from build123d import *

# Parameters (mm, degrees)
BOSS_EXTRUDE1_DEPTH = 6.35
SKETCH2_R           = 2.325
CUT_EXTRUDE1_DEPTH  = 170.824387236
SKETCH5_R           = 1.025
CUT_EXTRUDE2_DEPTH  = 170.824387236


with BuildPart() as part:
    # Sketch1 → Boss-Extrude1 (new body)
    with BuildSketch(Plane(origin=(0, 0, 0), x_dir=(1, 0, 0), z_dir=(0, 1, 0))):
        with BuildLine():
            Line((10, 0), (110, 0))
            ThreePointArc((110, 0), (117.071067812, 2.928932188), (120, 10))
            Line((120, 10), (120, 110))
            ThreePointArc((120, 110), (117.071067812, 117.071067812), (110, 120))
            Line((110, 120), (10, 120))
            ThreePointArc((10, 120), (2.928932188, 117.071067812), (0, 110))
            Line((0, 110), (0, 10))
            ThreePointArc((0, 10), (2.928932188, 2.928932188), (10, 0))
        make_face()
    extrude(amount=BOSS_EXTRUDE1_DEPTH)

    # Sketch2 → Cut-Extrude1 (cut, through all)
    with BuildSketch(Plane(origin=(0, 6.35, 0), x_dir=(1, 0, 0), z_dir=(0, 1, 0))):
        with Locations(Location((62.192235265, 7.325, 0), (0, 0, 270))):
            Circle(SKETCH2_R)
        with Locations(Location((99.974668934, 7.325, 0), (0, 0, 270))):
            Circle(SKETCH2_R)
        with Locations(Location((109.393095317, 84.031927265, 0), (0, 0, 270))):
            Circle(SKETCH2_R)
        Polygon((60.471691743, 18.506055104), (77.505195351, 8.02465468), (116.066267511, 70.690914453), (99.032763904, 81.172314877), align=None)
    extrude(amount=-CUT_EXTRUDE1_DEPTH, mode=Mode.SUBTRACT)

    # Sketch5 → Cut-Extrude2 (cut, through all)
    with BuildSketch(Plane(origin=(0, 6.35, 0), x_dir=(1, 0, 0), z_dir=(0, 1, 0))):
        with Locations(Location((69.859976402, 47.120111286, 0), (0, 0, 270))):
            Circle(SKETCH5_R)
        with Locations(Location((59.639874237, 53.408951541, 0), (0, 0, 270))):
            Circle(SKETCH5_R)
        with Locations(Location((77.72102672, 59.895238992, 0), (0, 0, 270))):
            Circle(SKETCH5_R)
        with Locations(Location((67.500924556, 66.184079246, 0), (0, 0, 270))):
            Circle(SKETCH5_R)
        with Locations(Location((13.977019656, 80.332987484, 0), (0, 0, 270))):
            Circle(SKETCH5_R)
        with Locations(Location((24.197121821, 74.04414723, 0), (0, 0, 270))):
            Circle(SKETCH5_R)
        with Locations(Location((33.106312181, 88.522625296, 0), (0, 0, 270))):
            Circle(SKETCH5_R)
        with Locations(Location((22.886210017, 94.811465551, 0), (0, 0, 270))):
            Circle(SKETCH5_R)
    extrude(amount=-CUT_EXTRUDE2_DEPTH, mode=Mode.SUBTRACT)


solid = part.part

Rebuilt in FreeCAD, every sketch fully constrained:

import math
import FreeCAD as App
import Part
import Sketcher

V = App.Vector
Q = App.Units.Quantity

doc = App.newDocument("Part")
body = doc.addObject("PartDesign::Body", "Body")

# Sketch on XZ plane
sketch1 = body.newObject("Sketcher::SketchObject", "Sketch")
sketch1.AttachmentSupport = (doc.getObject("XZ_Plane"), [""])
sketch1.MapMode = "FlatFace"
sketch1.addGeometry([
    Part.LineSegment(V(10, 0, 0), V(110, 0, 0)),  # 0
    Part.ArcOfCircle(Part.Circle(V(110, -10, 0), V(0, 0, 1), 10), math.radians(0), math.radians(90)),  # 1
    Part.LineSegment(V(120, -10, 0), V(120, -110, 0)),  # 2
    Part.ArcOfCircle(Part.Circle(V(110, -110, 0), V(0, 0, 1), 10), math.radians(-90), math.radians(0)),  # 3
    Part.LineSegment(V(110, -120, 0), V(10, -120, 0)),  # 4
    Part.ArcOfCircle(Part.Circle(V(10, -110, 0), V(0, 0, 1), 10), math.radians(180), math.radians(270)),  # 5
    Part.LineSegment(V(0, -110, 0), V(0, -10, 0)),  # 6
    Part.ArcOfCircle(Part.Circle(V(10, -10, 0), V(0, 0, 1), 10), math.radians(90), math.radians(180)),  # 7
], False)
sketch1.addConstraint([
    Sketcher.Constraint("Tangent", 0, 2, 1, 2),
    Sketcher.Constraint("Tangent", 1, 1, 2, 1),
    Sketcher.Constraint("Tangent", 2, 2, 3, 2),
    Sketcher.Constraint("Tangent", 3, 1, 4, 1),
    Sketcher.Constraint("Tangent", 4, 2, 5, 2),
    Sketcher.Constraint("Tangent", 5, 1, 6, 1),
    Sketcher.Constraint("Tangent", 6, 2, 7, 2),
    Sketcher.Constraint("Tangent", 7, 1, 0, 1),
    Sketcher.Constraint("Horizontal", 0),
    Sketcher.Constraint("Vertical", 2),
    Sketcher.Constraint("Horizontal", 4),
    Sketcher.Constraint("Vertical", 6),
    Sketcher.Constraint("Equal", 1, 3),
    Sketcher.Constraint("Equal", 3, 5),
    Sketcher.Constraint("Equal", 5, 7),
    Sketcher.Constraint("PointOnObject", 0, 2, -1),
    Sketcher.Constraint("PointOnObject", 5, 1, -2),
    Sketcher.Constraint("Equal", 4, 2),
    Sketcher.Constraint("Radius", 1, Q("10 mm")),
    Sketcher.Constraint("DistanceX", 0, 1, 0, 2, Q("100 mm")),
])
pad1 = body.newObject("PartDesign::Pad", "Pad")
pad1.Profile = sketch1
pad1.Length = 6.35
pad1.Reversed = True

# Sketch on XZ plane
sketch2 = body.newObject("Sketcher::SketchObject", "Sketch001")
sketch2.AttachmentSupport = (doc.getObject("XZ_Plane"), [""])
sketch2.MapMode = "FlatFace"
sketch2.AttachmentOffset = App.Placement(V(0, 0, -6.35), App.Rotation())
sketch2.addGeometry([
    Part.Circle(V(62.192235, -7.325, 0), V(0, 0, 1), 2.325),  # 0
    Part.Circle(V(99.974669, -7.325, 0), V(0, 0, 1), 2.325),  # 1
    Part.Circle(V(109.393095, -84.031927, 0), V(0, 0, 1), 2.325),  # 2
    Part.LineSegment(V(60.471692, -18.506055, 0), V(77.505195, -8.024655, 0)),  # 3
    Part.LineSegment(V(77.505195, -8.024655, 0), V(116.066268, -70.690914, 0)),  # 4
    Part.LineSegment(V(116.066268, -70.690914, 0), V(99.032764, -81.172315, 0)),  # 5
    Part.LineSegment(V(99.032764, -81.172315, 0), V(60.471692, -18.506055, 0)),  # 6
], False)
sketch2.addConstraint([
    Sketcher.Constraint("Coincident", 3, 2, 4, 1),
    Sketcher.Constraint("Coincident", 4, 2, 5, 1),
    Sketcher.Constraint("Coincident", 5, 2, 6, 1),
    Sketcher.Constraint("Coincident", 6, 2, 3, 1),
    Sketcher.Constraint("Equal", 0, 1),
    Sketcher.Constraint("Equal", 1, 2),
    Sketcher.Constraint("Perpendicular", 3, 4),
    Sketcher.Constraint("Perpendicular", 4, 5),
    Sketcher.Constraint("Perpendicular", 5, 6),
    Sketcher.Constraint("Horizontal", 0, 3, 1, 3),
    Sketcher.Constraint("Diameter", 0, Q("4.65 mm")),
    Sketcher.Constraint("Distance", 3, Q("20 mm")),
    Sketcher.Constraint("Distance", 4, Q("73.58 mm")),
    Sketcher.Constraint("DistanceY", 0, 3, -1, 1, Q("7.325 mm")),
    Sketcher.Constraint("DistanceX", 3, 2, 2, 3, Q("31.8879 mm")),
    Sketcher.Constraint("DistanceX", 1, 3, 4, 2, Q("16.091599 mm")),
    Sketcher.Constraint("DistanceY", 5, 2, 4, 2, Q("10.4814 mm")),
    Sketcher.Constraint("DistanceX", -1, 1, 1, 3, Q("99.974669 mm")),
    Sketcher.Constraint("DistanceX", 0, 3, 2, 3, Q("47.20086 mm")),
    Sketcher.Constraint("DistanceY", 2, 3, -1, 1, Q("84.031927 mm")),
    Sketcher.Constraint("DistanceY", 3, 2, -1, 1, Q("8.024655 mm")),
])
pocket1 = body.newObject("PartDesign::Pocket", "Pocket")
pocket1.Profile = sketch2
pocket1.Type = "ThroughAll"
pocket1.Reversed = True

# Sketch on XZ plane
sketch3 = body.newObject("Sketcher::SketchObject", "Sketch002")
sketch3.AttachmentSupport = (doc.getObject("XZ_Plane"), [""])
sketch3.MapMode = "FlatFace"
sketch3.AttachmentOffset = App.Placement(V(0, 0, -6.35), App.Rotation())
sketch3.addGeometry([
    Part.Circle(V(69.859976, -47.120111, 0), V(0, 0, 1), 1.025),  # 0
    Part.Circle(V(59.639874, -53.408952, 0), V(0, 0, 1), 1.025),  # 1
    Part.Circle(V(77.721027, -59.895239, 0), V(0, 0, 1), 1.025),  # 2
    Part.Circle(V(67.500925, -66.184079, 0), V(0, 0, 1), 1.025),  # 3
    Part.Circle(V(13.97702, -80.332987, 0), V(0, 0, 1), 1.025),  # 4
    Part.Circle(V(24.197122, -74.044147, 0), V(0, 0, 1), 1.025),  # 5
    Part.Circle(V(33.106312, -88.522625, 0), V(0, 0, 1), 1.025),  # 6
    Part.Circle(V(22.88621, -94.811466, 0), V(0, 0, 1), 1.025),  # 7
], False)
sketch3.addConstraint([
    Sketcher.Constraint("Equal", 0, 1),
    Sketcher.Constraint("Equal", 1, 2),
    Sketcher.Constraint("Equal", 2, 3),
    Sketcher.Constraint("Equal", 3, 4),
    Sketcher.Constraint("Equal", 4, 5),
    Sketcher.Constraint("Equal", 5, 6),
    Sketcher.Constraint("Equal", 6, 7),
    Sketcher.Constraint("Diameter", 0, Q("2.05 mm")),
    Sketcher.Constraint("DistanceY", 0, 3, -1, 1, Q("47.120111 mm")),
    Sketcher.Constraint("DistanceY", 1, 3, -1, 1, Q("53.408952 mm")),
    Sketcher.Constraint("DistanceY", 2, 3, -1, 1, Q("59.895239 mm")),
    Sketcher.Constraint("DistanceY", 3, 3, -1, 1, Q("66.184079 mm")),
    Sketcher.Constraint("DistanceX", -1, 1, 4, 3, Q("13.97702 mm")),
    Sketcher.Constraint("DistanceX", -1, 1, 5, 3, Q("24.197122 mm")),
    Sketcher.Constraint("DistanceX", -1, 1, 7, 3, Q("22.88621 mm")),
    Sketcher.Constraint("DistanceX", 0, 3, 2, 3, Q("7.86105 mm")),
    Sketcher.Constraint("DistanceX", 1, 3, 3, 3, Q("7.86105 mm")),
    Sketcher.Constraint("DistanceX", 3, 3, 0, 3, Q("2.359052 mm")),
    Sketcher.Constraint("DistanceY", 4, 3, 3, 3, Q("14.148908 mm")),
    Sketcher.Constraint("DistanceY", 4, 3, 5, 3, Q("6.28884 mm")),
    Sketcher.Constraint("DistanceX", 5, 3, 6, 3, Q("8.90919 mm")),
    Sketcher.Constraint("DistanceY", 6, 3, 5, 3, Q("14.478478 mm")),
    Sketcher.Constraint("DistanceY", 7, 3, 6, 3, Q("6.28884 mm")),
    Sketcher.Constraint("DistanceX", -1, 1, 0, 3, Q("69.859976 mm")),
])
pocket2 = body.newObject("PartDesign::Pocket", "Pocket001")
pocket2.Profile = sketch3
pocket2.Type = "ThroughAll"
pocket2.Reversed = True

doc.recompute()
